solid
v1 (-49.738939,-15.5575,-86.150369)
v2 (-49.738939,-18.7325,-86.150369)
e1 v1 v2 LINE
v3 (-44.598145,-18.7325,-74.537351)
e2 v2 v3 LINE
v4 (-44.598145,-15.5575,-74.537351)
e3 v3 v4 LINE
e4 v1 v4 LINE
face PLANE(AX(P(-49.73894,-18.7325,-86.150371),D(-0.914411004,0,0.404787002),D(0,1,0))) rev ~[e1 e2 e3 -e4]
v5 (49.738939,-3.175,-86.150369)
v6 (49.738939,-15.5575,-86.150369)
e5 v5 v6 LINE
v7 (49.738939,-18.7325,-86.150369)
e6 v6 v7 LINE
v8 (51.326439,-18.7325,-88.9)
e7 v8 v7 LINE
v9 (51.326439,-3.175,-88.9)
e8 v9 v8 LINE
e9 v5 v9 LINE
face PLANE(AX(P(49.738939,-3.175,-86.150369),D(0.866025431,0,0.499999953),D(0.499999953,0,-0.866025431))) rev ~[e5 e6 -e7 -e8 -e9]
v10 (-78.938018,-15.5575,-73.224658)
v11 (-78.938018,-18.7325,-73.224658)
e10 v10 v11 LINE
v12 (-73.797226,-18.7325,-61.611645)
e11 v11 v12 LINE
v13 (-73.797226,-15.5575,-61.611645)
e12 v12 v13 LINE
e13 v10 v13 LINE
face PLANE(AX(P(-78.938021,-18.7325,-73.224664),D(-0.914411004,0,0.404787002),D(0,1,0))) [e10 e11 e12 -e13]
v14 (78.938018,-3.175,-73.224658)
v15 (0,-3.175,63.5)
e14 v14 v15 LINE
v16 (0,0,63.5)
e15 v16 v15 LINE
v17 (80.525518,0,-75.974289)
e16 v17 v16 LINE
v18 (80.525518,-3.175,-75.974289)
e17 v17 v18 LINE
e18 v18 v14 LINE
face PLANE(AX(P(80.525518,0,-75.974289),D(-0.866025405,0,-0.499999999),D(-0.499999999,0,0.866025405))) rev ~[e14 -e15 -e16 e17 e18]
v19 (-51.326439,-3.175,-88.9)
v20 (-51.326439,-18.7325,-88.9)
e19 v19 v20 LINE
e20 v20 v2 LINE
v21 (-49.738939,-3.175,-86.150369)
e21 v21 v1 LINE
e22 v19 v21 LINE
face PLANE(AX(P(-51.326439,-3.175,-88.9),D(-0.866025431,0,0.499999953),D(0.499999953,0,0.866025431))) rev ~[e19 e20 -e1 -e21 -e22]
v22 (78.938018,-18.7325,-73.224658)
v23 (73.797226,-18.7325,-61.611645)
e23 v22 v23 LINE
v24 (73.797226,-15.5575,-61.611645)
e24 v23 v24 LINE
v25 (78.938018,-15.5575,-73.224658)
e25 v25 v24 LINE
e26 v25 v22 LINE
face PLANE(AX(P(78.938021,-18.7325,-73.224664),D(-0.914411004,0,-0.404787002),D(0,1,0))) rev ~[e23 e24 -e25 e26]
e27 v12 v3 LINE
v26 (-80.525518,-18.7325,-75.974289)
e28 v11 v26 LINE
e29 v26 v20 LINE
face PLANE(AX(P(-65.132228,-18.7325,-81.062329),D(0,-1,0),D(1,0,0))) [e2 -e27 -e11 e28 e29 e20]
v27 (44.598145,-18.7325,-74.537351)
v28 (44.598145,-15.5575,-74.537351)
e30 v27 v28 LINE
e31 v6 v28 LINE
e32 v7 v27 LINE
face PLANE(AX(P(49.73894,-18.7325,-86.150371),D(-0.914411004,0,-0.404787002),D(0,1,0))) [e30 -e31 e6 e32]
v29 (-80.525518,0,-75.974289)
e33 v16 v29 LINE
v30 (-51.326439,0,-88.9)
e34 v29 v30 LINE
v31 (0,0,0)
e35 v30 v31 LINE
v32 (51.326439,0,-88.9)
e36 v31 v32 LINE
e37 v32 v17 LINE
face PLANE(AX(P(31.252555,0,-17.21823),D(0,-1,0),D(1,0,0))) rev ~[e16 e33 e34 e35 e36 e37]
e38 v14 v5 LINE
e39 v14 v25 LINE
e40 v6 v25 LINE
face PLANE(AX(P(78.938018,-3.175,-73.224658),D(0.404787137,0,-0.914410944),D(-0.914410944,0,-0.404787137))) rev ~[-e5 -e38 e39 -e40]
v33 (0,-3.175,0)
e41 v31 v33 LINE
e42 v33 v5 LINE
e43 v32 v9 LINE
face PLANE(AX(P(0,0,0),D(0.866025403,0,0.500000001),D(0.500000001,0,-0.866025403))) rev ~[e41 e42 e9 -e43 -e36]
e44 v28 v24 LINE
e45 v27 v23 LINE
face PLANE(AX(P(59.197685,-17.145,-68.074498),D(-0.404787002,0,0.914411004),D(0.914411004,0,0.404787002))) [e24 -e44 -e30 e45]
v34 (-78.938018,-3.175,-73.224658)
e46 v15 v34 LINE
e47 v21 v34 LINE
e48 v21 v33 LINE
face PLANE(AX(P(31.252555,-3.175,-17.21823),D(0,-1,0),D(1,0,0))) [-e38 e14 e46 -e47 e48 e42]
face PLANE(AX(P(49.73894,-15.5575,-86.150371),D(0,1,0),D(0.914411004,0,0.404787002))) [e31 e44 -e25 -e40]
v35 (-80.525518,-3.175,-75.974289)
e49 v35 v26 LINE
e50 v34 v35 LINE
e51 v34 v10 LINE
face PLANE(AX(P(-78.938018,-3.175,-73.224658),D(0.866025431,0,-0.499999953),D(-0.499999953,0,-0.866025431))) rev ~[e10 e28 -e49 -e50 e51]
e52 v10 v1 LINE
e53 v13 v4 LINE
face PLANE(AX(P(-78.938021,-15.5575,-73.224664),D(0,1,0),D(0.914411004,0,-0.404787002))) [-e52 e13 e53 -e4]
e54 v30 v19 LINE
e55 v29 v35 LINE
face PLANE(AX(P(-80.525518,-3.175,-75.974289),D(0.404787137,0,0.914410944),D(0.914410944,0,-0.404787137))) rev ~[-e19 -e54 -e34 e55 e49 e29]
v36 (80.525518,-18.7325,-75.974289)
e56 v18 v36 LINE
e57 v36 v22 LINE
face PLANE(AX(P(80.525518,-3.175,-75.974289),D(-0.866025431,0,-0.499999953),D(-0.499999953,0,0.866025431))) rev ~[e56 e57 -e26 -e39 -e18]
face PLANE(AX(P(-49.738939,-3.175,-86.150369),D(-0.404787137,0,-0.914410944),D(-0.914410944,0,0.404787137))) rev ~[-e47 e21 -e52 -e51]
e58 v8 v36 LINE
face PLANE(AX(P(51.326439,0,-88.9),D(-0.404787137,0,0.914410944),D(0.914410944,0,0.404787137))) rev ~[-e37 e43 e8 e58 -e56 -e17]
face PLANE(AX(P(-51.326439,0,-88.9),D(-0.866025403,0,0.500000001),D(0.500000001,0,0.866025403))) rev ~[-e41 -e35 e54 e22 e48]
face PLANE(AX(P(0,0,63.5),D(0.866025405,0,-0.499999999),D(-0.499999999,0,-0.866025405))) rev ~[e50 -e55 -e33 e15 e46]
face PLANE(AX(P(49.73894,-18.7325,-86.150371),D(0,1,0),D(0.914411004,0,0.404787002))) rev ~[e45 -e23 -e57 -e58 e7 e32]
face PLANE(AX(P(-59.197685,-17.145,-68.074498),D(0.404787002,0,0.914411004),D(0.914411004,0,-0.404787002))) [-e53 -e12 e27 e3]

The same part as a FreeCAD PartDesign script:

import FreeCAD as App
import Part
import Sketcher
Q = App.Units.Quantity


def add_polygon(sketch, points):
    """Adds a closed chain of lines whose ends are joined by coincident constraints."""
    first, n = sketch.GeometryCount, len(points)
    for a, b in zip(points, points[1:] + points[:1]):
        sketch.addGeometry(Part.LineSegment(App.Vector(*a, 0), App.Vector(*b, 0)), False)
    for i in range(n):
        sketch.addConstraint(Sketcher.Constraint("Coincident", first + i, 2, first + (i + 1) % n, 1))

doc = App.newDocument("Part")
body = doc.addObject("PartDesign::Body", "Body")

sketch1 = body.newObject("Sketcher::SketchObject", "Sketch")
sketch1.AttachmentSupport = (doc.getObject("XZ_Plane"), [""])
sketch1.MapMode = "FlatFace"
add_polygon(sketch1, [(0, 0), (51, -89), (81, -76), (0, 64), (-81, -76), (-51, -89)])
sketch1.addConstraint([
    Sketcher.Constraint("Coincident", 5, 2, -1, 1),
    Sketcher.Constraint("Symmetric", 1, 2, 3, 2, -2),
    Sketcher.Constraint("Symmetric", 0, 2, 4, 2, -2),
    Sketcher.Constraint("PointOnObject", 2, 2, -2),
    Sketcher.Constraint("Parallel", 0, 2),
    Sketcher.Constraint("Angle", 0, Q("-60 deg")),
    Sketcher.Constraint("DistanceY", 0, 2, 2, 2, Q("6 in")),
    Sketcher.Constraint("DistanceY", 0, 2, -1, 1, Q("3.5 in")),
    Sketcher.Constraint("Distance", 1, 31.932119),
])
pad1 = body.newObject("PartDesign::Pad", "Pad")
pad1.Profile = sketch1
pad1.Length = Q("0.125 in")

sketch2 = body.newObject("Sketcher::SketchObject", "Sketch001")
sketch2.AttachmentSupport = (doc.getObject("XZ_Plane"), [""])
sketch2.MapMode = "FlatFace"
sketch2.AttachmentOffset = App.Placement(App.Vector(0, 0, 0.125 * 25.4), App.Rotation())
add_polygon(sketch2, [(-78.9, -73.2), (-80.5, -76), (-51.3, -88.9), (-49.7, -86.2)])
add_polygon(sketch2, [(49.7, -86.2), (51.3, -88.9), (80.5, -76), (78.9, -73.2)])
sketch2.addConstraint([
    Sketcher.Constraint("Symmetric", 1, 2, 4, 2, -2),
    Sketcher.Constraint("Symmetric", 0, 2, 5, 2, -2),
    Sketcher.Constraint("Symmetric", 3, 2, 6, 2, -2),
    Sketcher.Constraint("Symmetric", 2, 2, 7, 2, -2),
    Sketcher.Constraint("Parallel", 0, 2),
    Sketcher.Constraint("Parallel", 1, 3),
    Sketcher.Constraint("Angle", 0, Q("-119.999997 deg")),
    Sketcher.Constraint("DistanceY", 1, 2, -1, 1, Q("3.5 in")),
    Sketcher.Constraint("Distance", 0, Q("0.125 in")),
    Sketcher.Constraint("Distance", 1, 31.932119),
    Sketcher.Constraint("DistanceX", 0, 2, -1, 1, 80.525518),
    Sketcher.Constraint("DistanceY", 0, 2, -1, 1, 75.974289),
])
pad2 = body.newObject("PartDesign::Pad", "Pad001")
pad2.Profile = sketch2
pad2.Length = Q("0.6125 in")

sketch3 = body.newObject("Sketcher::SketchObject", "Sketch002")
sketch3.Placement = App.Placement(App.Vector(-40.037708, 0, -90.444865), App.Rotation(App.Vector(0.914411004, 0, -0.404787002), App.Vector(0, 1.000000001, 0), App.Vector(0.404787002, 0, 0.914411004), "ZXY"))
add_polygon(sketch3, [(-42.5, -15.6), (-42.5, -18.7), (-10.6, -18.7), (-10.6, -15.6)])
sketch3.addConstraint([
    Sketcher.Constraint("Vertical", 0),
    Sketcher.Constraint("Horizontal", 1),
    Sketcher.Constraint("Vertical", 2),
    Sketcher.Constraint("Horizontal", 3),
    Sketcher.Constraint("DistanceY", 0, 2, 0, 1, Q("0.125 in")),
    Sketcher.Constraint("DistanceY", 0, 2, -1, 1, Q("0.7375 in")),
    Sketcher.Constraint("DistanceX", 1, 1, 1, 2, 31.932119),
    Sketcher.Constraint("DistanceX", 1, 2, -1, 1, 10.609269),
])
pad3 = body.newObject("PartDesign::Pad", "Pad002")
pad3.Profile = sketch3
pad3.Length = Q("0.5 in")

sketch4 = body.newObject("Sketcher::SketchObject", "Sketch003")
sketch4.Placement = App.Placement(App.Vector(40.037708, 0, -90.444865), App.Rotation(App.Vector(0.914411004, 0, 0.404787002), App.Vector(0, 1.000000001, 0), App.Vector(-0.404787002, 0, 0.914411004), "ZXY"))
add_polygon(sketch4, [(10.6, -15.6), (10.6, -18.7), (42.5, -18.7), (42.5, -15.6)])
sketch4.addConstraint([
    Sketcher.Constraint("Vertical", 0),
    Sketcher.Constraint("Horizontal", 1),
    Sketcher.Constraint("Vertical", 2),
    Sketcher.Constraint("Horizontal", 3),
    Sketcher.Constraint("DistanceY", 0, 2, 0, 1, Q("0.125 in")),
    Sketcher.Constraint("DistanceY", 0, 2, -1, 1, Q("0.7375 in")),
    Sketcher.Constraint("DistanceX", 1, 1, 1, 2, 31.932119),
    Sketcher.Constraint("DistanceX", -1, 1, 0, 2, 10.609269),
])
pad4 = body.newObject("PartDesign::Pad", "Pad003")
pad4.Profile = sketch4
pad4.Length = Q("0.5 in")

doc.recompute()
